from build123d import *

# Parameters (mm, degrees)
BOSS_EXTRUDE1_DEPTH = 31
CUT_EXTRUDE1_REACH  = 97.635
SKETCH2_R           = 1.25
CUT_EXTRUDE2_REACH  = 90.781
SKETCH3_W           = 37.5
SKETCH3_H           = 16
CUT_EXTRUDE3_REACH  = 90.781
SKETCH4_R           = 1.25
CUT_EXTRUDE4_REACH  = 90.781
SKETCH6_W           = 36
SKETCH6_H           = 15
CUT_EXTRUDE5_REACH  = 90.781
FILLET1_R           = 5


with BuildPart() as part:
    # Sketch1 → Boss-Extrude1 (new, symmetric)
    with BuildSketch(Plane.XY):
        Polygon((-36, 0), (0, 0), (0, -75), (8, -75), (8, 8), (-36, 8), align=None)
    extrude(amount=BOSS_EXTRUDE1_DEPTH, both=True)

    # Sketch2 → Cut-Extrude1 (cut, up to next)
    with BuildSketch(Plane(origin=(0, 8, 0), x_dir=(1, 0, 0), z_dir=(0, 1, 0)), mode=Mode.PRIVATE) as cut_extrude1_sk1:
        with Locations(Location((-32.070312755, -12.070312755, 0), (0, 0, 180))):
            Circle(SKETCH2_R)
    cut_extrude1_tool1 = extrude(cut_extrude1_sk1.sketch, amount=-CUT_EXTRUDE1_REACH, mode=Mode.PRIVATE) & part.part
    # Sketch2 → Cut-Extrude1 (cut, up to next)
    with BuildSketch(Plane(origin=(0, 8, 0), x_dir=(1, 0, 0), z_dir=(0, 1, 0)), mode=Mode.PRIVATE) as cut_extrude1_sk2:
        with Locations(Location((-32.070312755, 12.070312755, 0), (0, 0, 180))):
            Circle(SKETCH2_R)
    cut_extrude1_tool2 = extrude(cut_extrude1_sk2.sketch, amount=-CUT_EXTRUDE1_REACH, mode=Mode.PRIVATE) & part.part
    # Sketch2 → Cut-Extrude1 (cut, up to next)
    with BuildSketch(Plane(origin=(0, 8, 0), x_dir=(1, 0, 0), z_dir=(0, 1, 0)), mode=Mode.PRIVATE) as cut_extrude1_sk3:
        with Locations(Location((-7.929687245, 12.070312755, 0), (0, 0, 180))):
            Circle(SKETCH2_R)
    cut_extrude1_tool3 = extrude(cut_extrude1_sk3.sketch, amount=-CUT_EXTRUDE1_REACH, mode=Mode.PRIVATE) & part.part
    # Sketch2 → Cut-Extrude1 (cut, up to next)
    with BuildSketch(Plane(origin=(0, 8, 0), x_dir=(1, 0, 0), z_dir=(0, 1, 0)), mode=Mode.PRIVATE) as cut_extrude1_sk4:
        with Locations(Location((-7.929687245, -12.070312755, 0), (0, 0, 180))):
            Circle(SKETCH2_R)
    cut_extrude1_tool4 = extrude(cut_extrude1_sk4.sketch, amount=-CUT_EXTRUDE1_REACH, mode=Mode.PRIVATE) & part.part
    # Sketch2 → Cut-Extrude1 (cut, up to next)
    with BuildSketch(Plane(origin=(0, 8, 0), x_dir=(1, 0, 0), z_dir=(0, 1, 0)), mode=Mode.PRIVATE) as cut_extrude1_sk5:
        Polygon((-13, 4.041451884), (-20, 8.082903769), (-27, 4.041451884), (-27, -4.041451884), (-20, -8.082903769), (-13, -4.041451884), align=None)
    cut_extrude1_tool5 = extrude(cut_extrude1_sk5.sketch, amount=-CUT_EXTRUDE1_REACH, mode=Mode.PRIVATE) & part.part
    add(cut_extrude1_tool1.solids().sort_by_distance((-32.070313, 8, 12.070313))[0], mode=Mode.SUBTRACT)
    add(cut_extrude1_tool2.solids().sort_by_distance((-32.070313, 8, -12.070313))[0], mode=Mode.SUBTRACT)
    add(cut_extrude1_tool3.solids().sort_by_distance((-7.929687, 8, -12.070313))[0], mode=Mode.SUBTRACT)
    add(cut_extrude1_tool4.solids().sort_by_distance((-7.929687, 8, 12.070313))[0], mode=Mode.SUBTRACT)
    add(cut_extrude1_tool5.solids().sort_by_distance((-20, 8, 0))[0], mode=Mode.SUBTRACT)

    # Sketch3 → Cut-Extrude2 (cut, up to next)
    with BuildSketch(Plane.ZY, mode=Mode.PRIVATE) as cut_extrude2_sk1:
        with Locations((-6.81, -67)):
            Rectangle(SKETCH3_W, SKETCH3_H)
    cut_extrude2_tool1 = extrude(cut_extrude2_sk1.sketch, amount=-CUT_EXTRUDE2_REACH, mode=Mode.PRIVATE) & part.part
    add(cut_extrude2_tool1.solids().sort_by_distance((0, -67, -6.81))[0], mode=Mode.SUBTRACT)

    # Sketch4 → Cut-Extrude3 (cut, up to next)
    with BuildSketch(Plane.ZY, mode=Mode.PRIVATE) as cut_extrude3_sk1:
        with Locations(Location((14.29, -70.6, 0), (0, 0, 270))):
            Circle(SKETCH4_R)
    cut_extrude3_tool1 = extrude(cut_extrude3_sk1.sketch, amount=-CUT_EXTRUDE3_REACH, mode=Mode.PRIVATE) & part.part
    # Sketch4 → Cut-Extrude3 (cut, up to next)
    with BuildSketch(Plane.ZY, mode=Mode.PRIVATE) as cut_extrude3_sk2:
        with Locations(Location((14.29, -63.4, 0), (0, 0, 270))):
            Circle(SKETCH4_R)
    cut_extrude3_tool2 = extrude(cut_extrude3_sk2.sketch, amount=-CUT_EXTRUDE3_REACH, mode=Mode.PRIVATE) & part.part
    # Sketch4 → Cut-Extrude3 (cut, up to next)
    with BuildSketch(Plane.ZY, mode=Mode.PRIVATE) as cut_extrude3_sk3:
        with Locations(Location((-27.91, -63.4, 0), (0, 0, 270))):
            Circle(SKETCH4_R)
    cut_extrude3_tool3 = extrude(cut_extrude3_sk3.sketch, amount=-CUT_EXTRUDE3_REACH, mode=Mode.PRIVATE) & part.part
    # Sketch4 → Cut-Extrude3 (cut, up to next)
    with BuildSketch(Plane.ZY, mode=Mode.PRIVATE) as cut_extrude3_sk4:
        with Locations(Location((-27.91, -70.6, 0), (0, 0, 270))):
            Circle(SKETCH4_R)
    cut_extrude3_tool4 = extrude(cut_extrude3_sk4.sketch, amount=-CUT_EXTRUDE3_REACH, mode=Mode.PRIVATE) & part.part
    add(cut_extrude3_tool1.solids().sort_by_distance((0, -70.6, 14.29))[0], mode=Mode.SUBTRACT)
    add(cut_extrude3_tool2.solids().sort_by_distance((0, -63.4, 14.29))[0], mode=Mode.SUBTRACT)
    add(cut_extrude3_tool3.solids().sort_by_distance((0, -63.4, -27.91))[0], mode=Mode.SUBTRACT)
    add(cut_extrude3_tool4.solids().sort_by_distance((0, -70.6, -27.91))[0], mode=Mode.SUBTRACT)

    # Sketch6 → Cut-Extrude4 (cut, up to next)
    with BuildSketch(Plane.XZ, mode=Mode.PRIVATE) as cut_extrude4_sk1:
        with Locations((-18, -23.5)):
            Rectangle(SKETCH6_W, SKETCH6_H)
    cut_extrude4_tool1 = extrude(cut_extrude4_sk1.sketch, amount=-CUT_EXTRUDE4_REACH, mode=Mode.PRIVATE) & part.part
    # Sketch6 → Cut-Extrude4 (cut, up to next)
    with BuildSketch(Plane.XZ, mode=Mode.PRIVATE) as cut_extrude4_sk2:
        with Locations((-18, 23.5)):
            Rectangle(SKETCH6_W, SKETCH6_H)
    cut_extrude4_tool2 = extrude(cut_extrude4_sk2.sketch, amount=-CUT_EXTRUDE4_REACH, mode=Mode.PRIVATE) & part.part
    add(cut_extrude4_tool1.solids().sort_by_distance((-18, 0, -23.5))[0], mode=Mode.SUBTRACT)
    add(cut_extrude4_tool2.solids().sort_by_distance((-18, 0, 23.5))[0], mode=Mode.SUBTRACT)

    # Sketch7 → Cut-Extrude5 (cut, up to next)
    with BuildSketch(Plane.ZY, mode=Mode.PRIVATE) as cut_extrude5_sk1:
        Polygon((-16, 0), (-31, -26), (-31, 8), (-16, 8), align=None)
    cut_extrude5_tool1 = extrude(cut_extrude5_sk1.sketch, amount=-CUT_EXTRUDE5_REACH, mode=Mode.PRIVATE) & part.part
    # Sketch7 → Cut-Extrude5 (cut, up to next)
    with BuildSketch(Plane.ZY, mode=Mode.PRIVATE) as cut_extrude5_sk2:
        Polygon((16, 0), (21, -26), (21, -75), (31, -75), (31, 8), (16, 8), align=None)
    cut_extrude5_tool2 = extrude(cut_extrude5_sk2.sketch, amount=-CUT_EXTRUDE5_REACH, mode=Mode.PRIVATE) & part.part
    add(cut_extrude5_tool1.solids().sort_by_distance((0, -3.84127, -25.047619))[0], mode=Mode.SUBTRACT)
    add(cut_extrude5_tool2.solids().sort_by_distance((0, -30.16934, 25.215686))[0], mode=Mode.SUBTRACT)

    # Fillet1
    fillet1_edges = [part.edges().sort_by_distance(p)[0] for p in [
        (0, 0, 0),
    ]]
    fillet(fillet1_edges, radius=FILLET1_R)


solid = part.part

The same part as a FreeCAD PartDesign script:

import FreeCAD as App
import Part
import Sketcher

V = App.Vector
Q = App.Units.Quantity


def edges_at(feature, points):
    """Names of the edges that pass closest to the given points."""
    edges = feature.Shape.Edges
    near = lambda p: min(range(len(edges)), key=lambda i: edges[i].distToShape(Part.Vertex(*p))[0])
    return sorted({f"Edge{near(p) + 1}" for p in points})

doc = App.newDocument("Part")
body = doc.addObject("PartDesign::Body", "Body")

# Sketch on XY plane
sketch1 = body.newObject("Sketcher::SketchObject", "Sketch")
sketch1.AttachmentSupport = (doc.getObject("XY_Plane"), [""])
sketch1.MapMode = "FlatFace"
sketch1.addGeometry([
    Part.LineSegment(V(-36, 0, 0), V(0, 0, 0)),  # 0
    Part.LineSegment(V(0, 0, 0), V(0, -75, 0)),  # 1
    Part.LineSegment(V(0, -75, 0), V(8, -75, 0)),  # 2
    Part.LineSegment(V(8, -75, 0), V(8, 8, 0)),  # 3
    Part.LineSegment(V(8, 8, 0), V(-36, 8, 0)),  # 4
    Part.LineSegment(V(-36, 8, 0), V(-36, 0, 0)),  # 5
], False)
sketch1.addConstraint([
    Sketcher.Constraint("Coincident", 0, 2, 1, 1),
    Sketcher.Constraint("Coincident", 1, 2, 2, 1),
    Sketcher.Constraint("Coincident", 2, 2, 3, 1),
    Sketcher.Constraint("Coincident", 3, 2, 4, 1),
    Sketcher.Constraint("Coincident", 4, 2, 5, 1),
    Sketcher.Constraint("Coincident", 5, 2, 0, 1),
    Sketcher.Constraint("Horizontal", 0),
    Sketcher.Constraint("Vertical", 1),
    Sketcher.Constraint("Horizontal", 2),
    Sketcher.Constraint("Vertical", 3),
    Sketcher.Constraint("Horizontal", 4),
    Sketcher.Constraint("Vertical", 5),
    Sketcher.Constraint("Coincident", 0, 2, -1, 1),
    Sketcher.Constraint("Equal", 2, 5),
    Sketcher.Constraint("DistanceX", 0, 1, 0, 2, Q("36 mm")),
    Sketcher.Constraint("DistanceX", 2, 1, 2, 2, Q("8 mm")),
    Sketcher.Constraint("DistanceY", 1, 2, 1, 1, Q("75 mm")),
])
pad1 = body.newObject("PartDesign::Pad", "Pad")
pad1.Profile = sketch1
pad1.Length = 62
pad1.Midplane = True

# Sketch on XZ plane
sketch2 = body.newObject("Sketcher::SketchObject", "Sketch001")
sketch2.AttachmentSupport = (doc.getObject("XZ_Plane"), [""])
sketch2.MapMode = "FlatFace"
sketch2.AttachmentOffset = App.Placement(V(0, 0, -8), App.Rotation())
sketch2.addGeometry(Part.Circle(V(-32.1, 12.1, 0), V(0, 0, 1), 1.2), False)
sketch2.addConstraint([
    Sketcher.Constraint("Diameter", 0, Q("2.5 mm")),
    Sketcher.Constraint("DistanceX", 0, 3, -1, 1, Q("32.070313 mm")),
    Sketcher.Constraint("DistanceY", -1, 1, 0, 3, Q("12.070313 mm")),
])
pocket1 = body.newObject("PartDesign::Pocket", "Pocket")
pocket1.Profile = sketch2
pocket1.Type = "UpToFirst"
pocket1.Reversed = True

# Sketch on XZ plane
sketch3 = body.newObject("Sketcher::SketchObject", "Sketch002")
sketch3.AttachmentSupport = (doc.getObject("XZ_Plane"), [""])
sketch3.MapMode = "FlatFace"
sketch3.AttachmentOffset = App.Placement(V(0, 0, -8), App.Rotation())
sketch3.addGeometry(Part.Circle(V(-32.1, -12.1, 0), V(0, 0, 1), 1.2), False)
sketch3.addConstraint([
    Sketcher.Constraint("Diameter", 0, Q("2.5 mm")),
    Sketcher.Constraint("DistanceX", 0, 3, -1, 1, Q("32.070313 mm")),
    Sketcher.Constraint("DistanceY", 0, 3, -1, 1, Q("12.070313 mm")),
])
pocket2 = body.newObject("PartDesign::Pocket", "Pocket001")
pocket2.Profile = sketch3
pocket2.Type = "UpToFirst"
pocket2.Reversed = True

# Sketch on XZ plane
sketch4 = body.newObject("Sketcher::SketchObject", "Sketch003")
sketch4.AttachmentSupport = (doc.getObject("XZ_Plane"), [""])
sketch4.MapMode = "FlatFace"
sketch4.AttachmentOffset = App.Placement(V(0, 0, -8), App.Rotation())
sketch4.addGeometry(Part.Circle(V(-7.9, -12.1, 0), V(0, 0, 1), 1.2), False)
sketch4.addConstraint([
    Sketcher.Constraint("Diameter", 0, Q("2.5 mm")),
    Sketcher.Constraint("DistanceX", 0, 3, -1, 1, Q("7.929687 mm")),
    Sketcher.Constraint("DistanceY", 0, 3, -1, 1, Q("12.070313 mm")),
])
pocket3 = body.newObject("PartDesign::Pocket", "Pocket002")
pocket3.Profile = sketch4
pocket3.Type = "UpToFirst"
pocket3.Reversed = True

# Sketch on XZ plane
sketch5 = body.newObject("Sketcher::SketchObject", "Sketch004")
sketch5.AttachmentSupport = (doc.getObject("XZ_Plane"), [""])
sketch5.MapMode = "FlatFace"
sketch5.AttachmentOffset = App.Placement(V(0, 0, -8), App.Rotation())
sketch5.addGeometry(Part.Circle(V(-7.9, 12.1, 0), V(0, 0, 1), 1.2), False)
sketch5.addConstraint([
    Sketcher.Constraint("Diameter", 0, Q("2.5 mm")),
    Sketcher.Constraint("DistanceX", 0, 3, -1, 1, Q("7.929687 mm")),
    Sketcher.Constraint("DistanceY", -1, 1, 0, 3, Q("12.070313 mm")),
])
pocket4 = body.newObject("PartDesign::Pocket", "Pocket003")
pocket4.Profile = sketch5
pocket4.Type = "UpToFirst"
pocket4.Reversed = True

# Sketch on XZ plane
sketch6 = body.newObject("Sketcher::SketchObject", "Sketch005")
sketch6.AttachmentSupport = (doc.getObject("XZ_Plane"), [""])
sketch6.MapMode = "FlatFace"
sketch6.AttachmentOffset = App.Placement(V(0, 0, -8), App.Rotation())
sketch6.addGeometry([
    Part.LineSegment(V(-13, -4, 0), V(-20, -8, 0)),  # 0
    Part.LineSegment(V(-20, -8, 0), V(-27, -4, 0)),  # 1
    Part.LineSegment(V(-27, -4, 0), V(-27, 4, 0)),  # 2
    Part.LineSegment(V(-27, 4, 0), V(-20, 8, 0)),  # 3
    Part.LineSegment(V(-20, 8, 0), V(-13, 4, 0)),  # 4
    Part.LineSegment(V(-13, 4, 0), V(-13, -4, 0)),  # 5
], False)
sketch6.addConstraint([
    Sketcher.Constraint("Coincident", 0, 2, 1, 1),
    Sketcher.Constraint("Coincident", 1, 2, 2, 1),
    Sketcher.Constraint("Coincident", 2, 2, 3, 1),
    Sketcher.Constraint("Coincident", 3, 2, 4, 1),
    Sketcher.Constraint("Coincident", 4, 2, 5, 1),
    Sketcher.Constraint("Coincident", 5, 2, 0, 1),
    Sketcher.Constraint("Vertical", 2),
    Sketcher.Constraint("Vertical", 5),
    Sketcher.Constraint("Symmetric", 0, 2, 3, 2, -1),
    Sketcher.Constraint("Parallel", 0, 3),
    Sketcher.Constraint("Parallel", 1, 4),
    Sketcher.Constraint("Horizontal", 2, 2, 4, 2),
    Sketcher.Constraint("Horizontal", 1, 2, 5, 2),
    Sketcher.Constraint("Angle", 0, Q("-150 deg")),
    Sketcher.Constraint("DistanceX", 0, 2, -1, 1, Q("20 mm")),
    Sketcher.Constraint("DistanceX", 1, 2, -1, 1, Q("27 mm")),
    Sketcher.Constraint("DistanceY", 2, 1, 2, 2, Q("8.082904 mm")),
])
pocket5 = body.newObject("PartDesign::Pocket", "Pocket004")
pocket5.Profile = sketch6
pocket5.Type = "UpToFirst"
pocket5.Reversed = True

# Sketch on YZ plane
sketch7 = body.newObject("Sketcher::SketchObject", "Sketch006")
sketch7.AttachmentSupport = (doc.getObject("YZ_Plane"), [""])
sketch7.MapMode = "FlatFace"
sketch7.addGeometry([
    Part.LineSegment(V(-59, -26, 0), V(-75, -26, 0)),
    Part.LineSegment(V(-75, -26, 0), V(-75, 12, 0)),
    Part.LineSegment(V(-75, 12, 0), V(-59, 12, 0)),
    Part.LineSegment(V(-59, 12, 0), V(-59, -26, 0)),
], False)
sketch7.addConstraint([
    Sketcher.Constraint("Coincident", 0, 2, 1, 1),
    Sketcher.Constraint("Coincident", 1, 2, 2, 1),
    Sketcher.Constraint("Coincident", 2, 2, 3, 1),
    Sketcher.Constraint("Coincident", 3, 2, 0, 1),
    Sketcher.Constraint("Horizontal", 0),
    Sketcher.Constraint("Vertical", 1),
    Sketcher.Constraint("Horizontal", 2),
    Sketcher.Constraint("Vertical", 3),
    Sketcher.Constraint("DistanceX", 0, 2, 0, 1, Q("16 mm")),
    Sketcher.Constraint("DistanceY", 1, 1, 1, 2, Q("37.5 mm")),
    Sketcher.Constraint("DistanceX", 0, 2, -1, 1, Q("75 mm")),
    Sketcher.Constraint("DistanceY", 0, 2, -1, 1, Q("25.56 mm")),
])
pocket6 = body.newObject("PartDesign::Pocket", "Pocket005")
pocket6.Profile = sketch7
pocket6.Type = "UpToFirst"
pocket6.Reversed = True

# Sketch on YZ plane
sketch8 = body.newObject("Sketcher::SketchObject", "Sketch007")
sketch8.AttachmentSupport = (doc.getObject("YZ_Plane"), [""])
sketch8.MapMode = "FlatFace"
sketch8.addGeometry(Part.Circle(V(-70.6, 14.3, 0), V(0, 0, 1), 1.2), False)
sketch8.addConstraint([
    Sketcher.Constraint("Diameter", 0, Q("2.5 mm")),
    Sketcher.Constraint("DistanceX", 0, 3, -1, 1, Q("70.6 mm")),
    Sketcher.Constraint("DistanceY", -1, 1, 0, 3, Q("14.29 mm")),
])
pocket7 = body.newObject("PartDesign::Pocket", "Pocket006")
pocket7.Profile = sketch8
pocket7.Type = "UpToFirst"
pocket7.Reversed = True

# Sketch on YZ plane
sketch9 = body.newObject("Sketcher::SketchObject", "Sketch008")
sketch9.AttachmentSupport = (doc.getObject("YZ_Plane"), [""])
sketch9.MapMode = "FlatFace"
sketch9.addGeometry(Part.Circle(V(-63.4, 14.3, 0), V(0, 0, 1), 1.2), False)
sketch9.addConstraint([
    Sketcher.Constraint("Diameter", 0, Q("2.5 mm")),
    Sketcher.Constraint("DistanceX", 0, 3, -1, 1, Q("63.4 mm")),
    Sketcher.Constraint("DistanceY", -1, 1, 0, 3, Q("14.29 mm")),
])
pocket8 = body.newObject("PartDesign::Pocket", "Pocket007")
pocket8.Profile = sketch9
pocket8.Type = "UpToFirst"
pocket8.Reversed = True

# Sketch on YZ plane
sketch10 = body.newObject("Sketcher::SketchObject", "Sketch009")
sketch10.AttachmentSupport = (doc.getObject("YZ_Plane"), [""])
sketch10.MapMode = "FlatFace"
sketch10.addGeometry(Part.Circle(V(-63.4, -27.9, 0), V(0, 0, 1), 1.2), False)
sketch10.addConstraint([
    Sketcher.Constraint("Diameter", 0, Q("2.5 mm")),
    Sketcher.Constraint("DistanceX", 0, 3, -1, 1, Q("63.4 mm")),
    Sketcher.Constraint("DistanceY", 0, 3, -1, 1, Q("27.91 mm")),
])
pocket9 = body.newObject("PartDesign::Pocket", "Pocket008")
pocket9.Profile = sketch10
pocket9.Type = "UpToFirst"
pocket9.Reversed = True

# Sketch on YZ plane
sketch11 = body.newObject("Sketcher::SketchObject", "Sketch010")
sketch11.AttachmentSupport = (doc.getObject("YZ_Plane"), [""])
sketch11.MapMode = "FlatFace"
sketch11.addGeometry(Part.Circle(V(-70.6, -27.9, 0), V(0, 0, 1), 1.2), False)
sketch11.addConstraint([
    Sketcher.Constraint("Diameter", 0, Q("2.5 mm")),
    Sketcher.Constraint("DistanceX", 0, 3, -1, 1, Q("70.6 mm")),
    Sketcher.Constraint("DistanceY", 0, 3, -1, 1, Q("27.91 mm")),
])
pocket10 = body.newObject("PartDesign::Pocket", "Pocket009")
pocket10.Profile = sketch11
pocket10.Type = "UpToFirst"
pocket10.Reversed = True

# Sketch on XZ plane
sketch12 = body.newObject("Sketcher::SketchObject", "Sketch011")
sketch12.AttachmentSupport = (doc.getObject("XZ_Plane"), [""])
sketch12.MapMode = "FlatFace"
sketch12.addGeometry([
    Part.LineSegment(V(-36, -16, 0), V(-36, -31, 0)),
    Part.LineSegment(V(-36, -31, 0), V(0, -31, 0)),
    Part.LineSegment(V(0, -31, 0), V(0, -16, 0)),
    Part.LineSegment(V(0, -16, 0), V(-36, -16, 0)),
], False)
sketch12.addConstraint([
    Sketcher.Constraint("Coincident", 0, 2, 1, 1),
    Sketcher.Constraint("Coincident", 1, 2, 2, 1),
    Sketcher.Constraint("Coincident", 2, 2, 3, 1),
    Sketcher.Constraint("Coincident", 3, 2, 0, 1),
    Sketcher.Constraint("Vertical", 0),
    Sketcher.Constraint("Horizontal", 1),
    Sketcher.Constraint("Vertical", 2),
    Sketcher.Constraint("Horizontal", 3),
    Sketcher.Constraint("PointOnObject", 1, 2, -2),
    Sketcher.Constraint("DistanceX", 1, 1, 1, 2, Q("36 mm")),
    Sketcher.Constraint("DistanceY", 0, 2, 0, 1, Q("15 mm")),
    Sketcher.Constraint("DistanceY", 0, 2, -1, 1, Q("31 mm")),
])
pocket11 = body.newObject("PartDesign::Pocket", "Pocket010")
pocket11.Profile = sketch12
pocket11.Type = "UpToFirst"

# Sketch on XZ plane
sketch13 = body.newObject("Sketcher::SketchObject", "Sketch012")
sketch13.AttachmentSupport = (doc.getObject("XZ_Plane"), [""])
sketch13.MapMode = "FlatFace"
sketch13.addGeometry([
    Part.LineSegment(V(-36, 31, 0), V(-36, 16, 0)),
    Part.LineSegment(V(-36, 16, 0), V(0, 16, 0)),
    Part.LineSegment(V(0, 16, 0), V(0, 31, 0)),
    Part.LineSegment(V(0, 31, 0), V(-36, 31, 0)),
], False)
sketch13.addConstraint([
    Sketcher.Constraint("Coincident", 0, 2, 1, 1),
    Sketcher.Constraint("Coincident", 1, 2, 2, 1),
    Sketcher.Constraint("Coincident", 2, 2, 3, 1),
    Sketcher.Constraint("Coincident", 3, 2, 0, 1),
    Sketcher.Constraint("Vertical", 0),
    Sketcher.Constraint("Horizontal", 1),
    Sketcher.Constraint("Vertical", 2),
    Sketcher.Constraint("Horizontal", 3),
    Sketcher.Constraint("PointOnObject", 1, 2, -2),
    Sketcher.Constraint("DistanceX", 1, 1, 1, 2, Q("36 mm")),
    Sketcher.Constraint("DistanceY", 0, 2, 0, 1, Q("15 mm")),
    Sketcher.Constraint("DistanceY", -1, 1, 0, 2, Q("16 mm")),
])
pocket12 = body.newObject("PartDesign::Pocket", "Pocket011")
pocket12.Profile = sketch13
pocket12.Type = "UpToFirst"

# Sketch on YZ plane
sketch14 = body.newObject("Sketcher::SketchObject", "Sketch013")
sketch14.AttachmentSupport = (doc.getObject("YZ_Plane"), [""])
sketch14.MapMode = "FlatFace"
sketch14.addGeometry([
    Part.LineSegment(V(-26, -31, 0), V(0, -16, 0)),
    Part.LineSegment(V(0, -16, 0), V(8, -16, 0)),
    Part.LineSegment(V(8, -16, 0), V(8, -31, 0)),
    Part.LineSegment(V(8, -31, 0), V(-26, -31, 0)),
], False)
sketch14.addConstraint([
    Sketcher.Constraint("Coincident", 0, 2, 1, 1),
    Sketcher.Constraint("Coincident", 1, 2, 2, 1),
    Sketcher.Constraint("Coincident", 2, 2, 3, 1),
    Sketcher.Constraint("Coincident", 3, 2, 0, 1),
    Sketcher.Constraint("Horizontal", 1),
    Sketcher.Constraint("Vertical", 2),
    Sketcher.Constraint("Horizontal", 3),
    Sketcher.Constraint("PointOnObject", 0, 2, -2),
    Sketcher.Constraint("DistanceX", 1, 1, 1, 2, Q("8 mm")),
    Sketcher.Constraint("DistanceX", 3, 2, 3, 1, Q("34 mm")),
    Sketcher.Constraint("DistanceY", 2, 2, 2, 1, Q("15 mm")),
    Sketcher.Constraint("DistanceY", 0, 2, -1, 1, Q("16 mm")),
])
pocket13 = body.newObject("PartDesign::Pocket", "Pocket012")
pocket13.Profile = sketch14
pocket13.Type = "UpToFirst"
pocket13.Reversed = True

# Sketch on YZ plane
sketch15 = body.newObject("Sketcher::SketchObject", "Sketch014")
sketch15.AttachmentSupport = (doc.getObject("YZ_Plane"), [""])
sketch15.MapMode = "FlatFace"
sketch15.addGeometry([
    Part.LineSegment(V(0, 16, 0), V(-26, 21, 0)),  # 0
    Part.LineSegment(V(-26, 21, 0), V(-75, 21, 0)),  # 1
    Part.LineSegment(V(-75, 21, 0), V(-75, 31, 0)),  # 2
    Part.LineSegment(V(-75, 31, 0), V(8, 31, 0)),  # 3
    Part.LineSegment(V(8, 31, 0), V(8, 16, 0)),  # 4
    Part.LineSegment(V(8, 16, 0), V(0, 16, 0)),  # 5
], False)
sketch15.addConstraint([
    Sketcher.Constraint("Coincident", 0, 2, 1, 1),
    Sketcher.Constraint("Coincident", 1, 2, 2, 1),
    Sketcher.Constraint("Coincident", 2, 2, 3, 1),
    Sketcher.Constraint("Coincident", 3, 2, 4, 1),
    Sketcher.Constraint("Coincident", 4, 2, 5, 1),
    Sketcher.Constraint("Coincident", 5, 2, 0, 1),
    Sketcher.Constraint("Horizontal", 1),
    Sketcher.Constraint("Vertical", 2),
    Sketcher.Constraint("Horizontal", 3),
    Sketcher.Constraint("Vertical", 4),
    Sketcher.Constraint("Horizontal", 5),
    Sketcher.Constraint("PointOnObject", 5, 2, -2),
    Sketcher.Constraint("DistanceX", 1, 2, 1, 1, Q("49 mm")),
    Sketcher.Constraint("DistanceX", 3, 1, 3, 2, Q("83 mm")),
    Sketcher.Constraint("DistanceX", 5, 2, 5, 1, Q("8 mm")),
    Sketcher.Constraint("DistanceY", 2, 1, 2, 2, Q("10 mm")),
    Sketcher.Constraint("DistanceY", 4, 2, 4, 1, Q("15 mm")),
    Sketcher.Constraint("DistanceY", -1, 1, 0, 2, Q("21 mm")),
])
pocket14 = body.newObject("PartDesign::Pocket", "Pocket013")
pocket14.Profile = sketch15
pocket14.Type = "UpToFirst"
pocket14.Reversed = True
doc.recompute()

fillet = body.newObject("PartDesign::Fillet", "Fillet")
fillet.Base = (pocket14, edges_at(pocket14, [(0, 0, 0)]))
fillet.Radius = 5

doc.recompute()
